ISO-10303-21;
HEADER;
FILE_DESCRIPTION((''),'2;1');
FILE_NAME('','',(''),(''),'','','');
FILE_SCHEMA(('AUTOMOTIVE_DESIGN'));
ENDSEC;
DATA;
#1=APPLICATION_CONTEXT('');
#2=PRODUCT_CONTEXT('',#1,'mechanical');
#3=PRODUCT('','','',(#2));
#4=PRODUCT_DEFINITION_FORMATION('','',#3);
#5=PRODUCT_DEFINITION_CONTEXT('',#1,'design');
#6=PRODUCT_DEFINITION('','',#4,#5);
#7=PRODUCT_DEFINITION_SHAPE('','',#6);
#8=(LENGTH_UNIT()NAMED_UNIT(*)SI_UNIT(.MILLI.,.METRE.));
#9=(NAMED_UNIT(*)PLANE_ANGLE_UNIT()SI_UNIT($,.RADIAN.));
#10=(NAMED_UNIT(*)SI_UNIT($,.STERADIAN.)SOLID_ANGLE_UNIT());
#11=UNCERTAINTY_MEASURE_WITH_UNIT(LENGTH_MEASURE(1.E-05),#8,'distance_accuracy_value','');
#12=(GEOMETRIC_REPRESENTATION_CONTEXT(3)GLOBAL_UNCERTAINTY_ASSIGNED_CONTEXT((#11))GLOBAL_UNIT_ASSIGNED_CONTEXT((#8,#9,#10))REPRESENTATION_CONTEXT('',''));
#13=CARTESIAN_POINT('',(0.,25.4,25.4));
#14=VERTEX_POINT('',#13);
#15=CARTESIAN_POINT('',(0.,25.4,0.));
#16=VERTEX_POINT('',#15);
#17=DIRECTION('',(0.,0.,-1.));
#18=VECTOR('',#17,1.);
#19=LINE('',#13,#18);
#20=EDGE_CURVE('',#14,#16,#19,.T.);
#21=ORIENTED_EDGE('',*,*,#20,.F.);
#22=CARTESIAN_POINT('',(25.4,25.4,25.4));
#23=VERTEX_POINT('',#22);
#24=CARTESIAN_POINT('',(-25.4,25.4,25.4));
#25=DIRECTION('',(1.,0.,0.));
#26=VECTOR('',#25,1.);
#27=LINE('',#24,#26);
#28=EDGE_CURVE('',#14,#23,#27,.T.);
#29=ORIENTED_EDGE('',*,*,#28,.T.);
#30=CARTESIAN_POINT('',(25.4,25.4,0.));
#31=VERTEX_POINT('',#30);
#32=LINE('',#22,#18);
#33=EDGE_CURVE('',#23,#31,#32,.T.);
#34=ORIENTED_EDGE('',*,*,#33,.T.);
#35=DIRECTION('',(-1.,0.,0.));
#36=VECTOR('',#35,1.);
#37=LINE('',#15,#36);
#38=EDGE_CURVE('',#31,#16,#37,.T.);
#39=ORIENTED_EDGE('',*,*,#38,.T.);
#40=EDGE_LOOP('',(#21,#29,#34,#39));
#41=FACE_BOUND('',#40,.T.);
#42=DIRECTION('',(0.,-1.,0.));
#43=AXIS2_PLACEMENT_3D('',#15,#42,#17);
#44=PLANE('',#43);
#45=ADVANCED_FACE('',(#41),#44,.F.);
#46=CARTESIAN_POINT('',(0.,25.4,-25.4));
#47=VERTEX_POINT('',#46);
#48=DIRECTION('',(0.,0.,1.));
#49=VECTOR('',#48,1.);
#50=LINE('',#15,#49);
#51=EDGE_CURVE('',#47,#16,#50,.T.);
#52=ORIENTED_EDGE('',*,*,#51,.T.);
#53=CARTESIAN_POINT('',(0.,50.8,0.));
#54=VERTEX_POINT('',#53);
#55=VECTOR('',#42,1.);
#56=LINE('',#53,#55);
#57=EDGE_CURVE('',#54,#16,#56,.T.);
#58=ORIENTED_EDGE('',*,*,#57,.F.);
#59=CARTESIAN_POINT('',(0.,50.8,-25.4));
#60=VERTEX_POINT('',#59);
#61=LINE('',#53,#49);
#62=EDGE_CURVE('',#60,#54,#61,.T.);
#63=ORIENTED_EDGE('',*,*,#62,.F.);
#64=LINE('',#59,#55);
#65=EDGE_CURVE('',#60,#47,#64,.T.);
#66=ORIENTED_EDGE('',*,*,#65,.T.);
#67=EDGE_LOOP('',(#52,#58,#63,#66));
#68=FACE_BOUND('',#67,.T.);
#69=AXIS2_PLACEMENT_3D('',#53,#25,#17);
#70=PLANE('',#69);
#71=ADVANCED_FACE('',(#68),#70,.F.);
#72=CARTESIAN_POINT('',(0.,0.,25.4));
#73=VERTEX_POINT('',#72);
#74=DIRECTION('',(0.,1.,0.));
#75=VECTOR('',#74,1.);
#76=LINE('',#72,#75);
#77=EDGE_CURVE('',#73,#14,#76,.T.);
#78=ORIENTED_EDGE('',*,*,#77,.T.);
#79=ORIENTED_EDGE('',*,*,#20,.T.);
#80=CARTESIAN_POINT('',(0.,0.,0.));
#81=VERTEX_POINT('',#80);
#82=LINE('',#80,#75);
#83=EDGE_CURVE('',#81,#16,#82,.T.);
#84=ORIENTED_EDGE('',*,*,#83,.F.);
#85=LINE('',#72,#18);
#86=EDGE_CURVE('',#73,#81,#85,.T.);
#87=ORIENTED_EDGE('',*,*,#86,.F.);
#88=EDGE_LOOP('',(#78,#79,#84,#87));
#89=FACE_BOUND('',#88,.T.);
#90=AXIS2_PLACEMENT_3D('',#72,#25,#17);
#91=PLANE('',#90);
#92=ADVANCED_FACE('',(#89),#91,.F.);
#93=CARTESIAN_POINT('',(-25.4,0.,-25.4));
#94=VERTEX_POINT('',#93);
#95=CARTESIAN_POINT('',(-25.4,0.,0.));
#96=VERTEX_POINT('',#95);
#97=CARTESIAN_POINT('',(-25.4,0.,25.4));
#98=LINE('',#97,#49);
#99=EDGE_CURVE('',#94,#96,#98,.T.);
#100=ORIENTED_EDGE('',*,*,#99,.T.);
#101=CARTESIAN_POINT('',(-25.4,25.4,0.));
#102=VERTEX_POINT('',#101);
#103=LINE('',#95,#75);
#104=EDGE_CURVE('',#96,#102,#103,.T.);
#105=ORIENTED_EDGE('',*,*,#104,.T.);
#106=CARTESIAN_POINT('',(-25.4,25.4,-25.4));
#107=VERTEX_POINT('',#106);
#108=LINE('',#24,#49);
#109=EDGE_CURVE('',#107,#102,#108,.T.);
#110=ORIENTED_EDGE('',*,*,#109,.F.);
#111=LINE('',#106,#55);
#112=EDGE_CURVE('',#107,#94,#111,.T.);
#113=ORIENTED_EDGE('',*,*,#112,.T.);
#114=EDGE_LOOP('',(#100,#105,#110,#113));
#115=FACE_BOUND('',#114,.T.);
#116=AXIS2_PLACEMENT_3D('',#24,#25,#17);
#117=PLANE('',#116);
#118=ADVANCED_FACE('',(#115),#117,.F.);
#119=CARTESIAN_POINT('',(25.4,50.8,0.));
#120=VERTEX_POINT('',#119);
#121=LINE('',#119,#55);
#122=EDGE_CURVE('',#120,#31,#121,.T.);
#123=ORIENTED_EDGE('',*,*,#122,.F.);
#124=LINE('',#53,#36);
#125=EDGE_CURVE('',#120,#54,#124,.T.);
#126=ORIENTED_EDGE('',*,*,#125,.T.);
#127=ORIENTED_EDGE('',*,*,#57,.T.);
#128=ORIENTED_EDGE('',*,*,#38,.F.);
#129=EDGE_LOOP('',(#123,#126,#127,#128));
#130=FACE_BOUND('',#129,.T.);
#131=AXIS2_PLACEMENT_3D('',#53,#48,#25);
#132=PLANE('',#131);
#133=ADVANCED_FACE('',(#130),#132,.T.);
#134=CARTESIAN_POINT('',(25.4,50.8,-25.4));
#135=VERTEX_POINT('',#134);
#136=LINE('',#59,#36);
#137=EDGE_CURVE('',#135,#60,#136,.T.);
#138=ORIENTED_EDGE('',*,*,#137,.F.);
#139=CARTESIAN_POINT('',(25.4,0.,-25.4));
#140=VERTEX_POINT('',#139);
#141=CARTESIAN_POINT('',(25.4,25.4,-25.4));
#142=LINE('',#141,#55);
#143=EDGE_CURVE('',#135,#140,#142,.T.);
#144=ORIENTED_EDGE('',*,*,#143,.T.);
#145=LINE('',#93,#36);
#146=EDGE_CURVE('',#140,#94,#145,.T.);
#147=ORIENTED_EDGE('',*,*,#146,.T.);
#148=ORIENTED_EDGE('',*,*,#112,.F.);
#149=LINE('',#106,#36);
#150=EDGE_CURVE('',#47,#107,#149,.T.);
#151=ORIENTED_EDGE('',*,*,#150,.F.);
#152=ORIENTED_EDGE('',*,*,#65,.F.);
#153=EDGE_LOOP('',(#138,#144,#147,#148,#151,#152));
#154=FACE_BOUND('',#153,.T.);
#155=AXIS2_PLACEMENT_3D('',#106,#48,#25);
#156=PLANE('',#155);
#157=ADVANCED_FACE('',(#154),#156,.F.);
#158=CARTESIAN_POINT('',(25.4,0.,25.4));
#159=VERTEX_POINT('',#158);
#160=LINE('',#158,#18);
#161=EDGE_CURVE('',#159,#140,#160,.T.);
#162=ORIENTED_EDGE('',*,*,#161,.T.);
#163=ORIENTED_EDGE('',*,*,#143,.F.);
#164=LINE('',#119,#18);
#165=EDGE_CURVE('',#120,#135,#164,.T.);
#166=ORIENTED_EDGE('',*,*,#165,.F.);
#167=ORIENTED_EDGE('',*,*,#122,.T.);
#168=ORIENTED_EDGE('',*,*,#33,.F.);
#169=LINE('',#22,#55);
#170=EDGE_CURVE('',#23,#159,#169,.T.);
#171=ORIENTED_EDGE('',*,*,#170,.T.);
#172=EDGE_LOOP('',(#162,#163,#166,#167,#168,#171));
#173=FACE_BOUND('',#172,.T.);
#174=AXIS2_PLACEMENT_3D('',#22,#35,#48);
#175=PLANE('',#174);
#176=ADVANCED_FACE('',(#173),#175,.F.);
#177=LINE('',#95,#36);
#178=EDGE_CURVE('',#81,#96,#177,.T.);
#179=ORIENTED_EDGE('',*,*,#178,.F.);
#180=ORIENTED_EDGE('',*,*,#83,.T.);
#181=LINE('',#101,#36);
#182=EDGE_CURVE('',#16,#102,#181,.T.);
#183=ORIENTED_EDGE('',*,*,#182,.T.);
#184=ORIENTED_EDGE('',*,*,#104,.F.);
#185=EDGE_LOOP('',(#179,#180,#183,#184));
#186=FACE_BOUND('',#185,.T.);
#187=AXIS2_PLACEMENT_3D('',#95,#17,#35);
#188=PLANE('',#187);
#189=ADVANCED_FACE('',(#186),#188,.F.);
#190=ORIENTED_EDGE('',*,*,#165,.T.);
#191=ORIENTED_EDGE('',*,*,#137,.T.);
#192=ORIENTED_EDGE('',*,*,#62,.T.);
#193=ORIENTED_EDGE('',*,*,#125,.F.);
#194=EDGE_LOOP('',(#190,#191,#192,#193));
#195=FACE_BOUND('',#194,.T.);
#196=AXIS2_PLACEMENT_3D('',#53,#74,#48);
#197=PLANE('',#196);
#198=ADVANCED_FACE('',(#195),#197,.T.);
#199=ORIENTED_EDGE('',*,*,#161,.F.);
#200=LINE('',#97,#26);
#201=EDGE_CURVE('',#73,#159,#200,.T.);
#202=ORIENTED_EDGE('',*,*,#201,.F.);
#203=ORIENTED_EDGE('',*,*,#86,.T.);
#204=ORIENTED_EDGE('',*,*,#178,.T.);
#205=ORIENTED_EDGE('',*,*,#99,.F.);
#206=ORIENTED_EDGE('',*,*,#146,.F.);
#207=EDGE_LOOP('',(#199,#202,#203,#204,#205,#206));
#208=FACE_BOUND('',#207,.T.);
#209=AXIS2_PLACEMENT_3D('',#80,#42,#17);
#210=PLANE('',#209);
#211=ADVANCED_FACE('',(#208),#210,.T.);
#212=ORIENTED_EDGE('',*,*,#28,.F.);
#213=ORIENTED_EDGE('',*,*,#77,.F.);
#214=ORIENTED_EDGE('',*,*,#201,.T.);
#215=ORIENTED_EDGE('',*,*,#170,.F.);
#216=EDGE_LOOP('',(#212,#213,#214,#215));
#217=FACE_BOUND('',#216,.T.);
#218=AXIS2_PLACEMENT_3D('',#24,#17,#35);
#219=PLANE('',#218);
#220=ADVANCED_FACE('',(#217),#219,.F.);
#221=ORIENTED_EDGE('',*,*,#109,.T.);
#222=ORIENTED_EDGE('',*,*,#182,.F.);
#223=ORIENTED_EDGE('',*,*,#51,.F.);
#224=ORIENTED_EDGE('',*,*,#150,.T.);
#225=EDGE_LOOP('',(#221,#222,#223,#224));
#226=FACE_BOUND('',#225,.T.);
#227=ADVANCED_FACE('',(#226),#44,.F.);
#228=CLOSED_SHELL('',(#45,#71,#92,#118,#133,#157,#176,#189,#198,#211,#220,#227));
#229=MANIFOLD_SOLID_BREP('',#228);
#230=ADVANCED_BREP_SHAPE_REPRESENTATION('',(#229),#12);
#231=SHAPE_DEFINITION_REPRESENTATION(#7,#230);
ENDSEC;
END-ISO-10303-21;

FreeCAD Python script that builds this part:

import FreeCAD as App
import Part
import Sketcher
Q = App.Units.Quantity

doc = App.newDocument("Part")
body = doc.addObject("PartDesign::Body", "Body")

# Sketch on XZ plane
sketch1 = body.newObject("Sketcher::SketchObject", "Sketch")
sketch1.AttachmentSupport = (doc.getObject("XZ_Plane"), [""])
sketch1.MapMode = "FlatFace"
sketch1.addGeometry([
    Part.LineSegment(App.Vector(-25, -25, 0), App.Vector(-25, 25, 0)),
    Part.LineSegment(App.Vector(-25, 25, 0), App.Vector(25, 25, 0)),
    Part.LineSegment(App.Vector(25, 25, 0), App.Vector(25, -25, 0)),
    Part.LineSegment(App.Vector(25, -25, 0), App.Vector(-25, -25, 0)),
], False)
sketch1.addConstraint([
    Sketcher.Constraint("Coincident", 0, 2, 1, 1),
    Sketcher.Constraint("Coincident", 1, 2, 2, 1),
    Sketcher.Constraint("Coincident", 2, 2, 3, 1),
    Sketcher.Constraint("Coincident", 3, 2, 0, 1),
    Sketcher.Constraint("Vertical", 0),
    Sketcher.Constraint("Horizontal", 1),
    Sketcher.Constraint("Vertical", 2),
    Sketcher.Constraint("Horizontal", 3),
    Sketcher.Constraint("Symmetric", 0, 2, 2, 2, -1, 1),
    Sketcher.Constraint("Equal", 3, 0),
    Sketcher.Constraint("DistanceX", 1, 1, 1, 2, Q("2 in")),
])
pad1 = body.newObject("PartDesign::Pad", "Pad")
pad1.Profile = sketch1
pad1.Length = Q("1 in")
pad1.Reversed = True

# Sketch on XZ plane
sketch2 = body.newObject("Sketcher::SketchObject", "Sketch001")
sketch2.AttachmentSupport = (doc.getObject("XZ_Plane"), [""])
sketch2.MapMode = "FlatFace"
sketch2.AttachmentOffset = App.Placement(App.Vector(0, 0, -1 * 25.4), App.Rotation())
sketch2.addGeometry([
    Part.LineSegment(App.Vector(-25, 0, 0), App.Vector(-25, 25, 0)),
    Part.LineSegment(App.Vector(-25, 25, 0), App.Vector(0, 25, 0)),
    Part.LineSegment(App.Vector(0, 25, 0), App.Vector(0, 0, 0)),
    Part.LineSegment(App.Vector(0, 0, 0), App.Vector(-25, 0, 0)),
], False)
sketch2.addConstraint([
    Sketcher.Constraint("Coincident", 0, 2, 1, 1),
    Sketcher.Constraint("Coincident", 1, 2, 2, 1),
    Sketcher.Constraint("Coincident", 2, 2, 3, 1),
    Sketcher.Constraint("Coincident", 3, 2, 0, 1),
    Sketcher.Constraint("Vertical", 0),
    Sketcher.Constraint("Horizontal", 1),
    Sketcher.Constraint("Vertical", 2),
    Sketcher.Constraint("Horizontal", 3),
    Sketcher.Constraint("Coincident", 2, 2, -1, 1),
    Sketcher.Constraint("Equal", 3, 0),
    Sketcher.Constraint("DistanceX", 1, 1, 1, 2, Q("1 in")),
])
pocket1 = body.newObject("PartDesign::Pocket", "Pocket")
pocket1.Profile = sketch2
pocket1.Type = "ThroughAll"
pocket1.Reversed = True

# Sketch on XZ plane
sketch3 = body.newObject("Sketcher::SketchObject", "Sketch002")
sketch3.AttachmentSupport = (doc.getObject("XZ_Plane"), [""])
sketch3.MapMode = "FlatFace"
sketch3.AttachmentOffset = App.Placement(App.Vector(0, 0, -1 * 25.4), App.Rotation())
sketch3.addGeometry([
    Part.LineSegment(App.Vector(0, -25, 0), App.Vector(0, 0, 0)),
    Part.LineSegment(App.Vector(0, 0, 0), App.Vector(25, 0, 0)),
    Part.LineSegment(App.Vector(25, 0, 0), App.Vector(25, -25, 0)),
    Part.LineSegment(App.Vector(25, -25, 0), App.Vector(0, -25, 0)),
], False)
sketch3.addConstraint([
    Sketcher.Constraint("Coincident", 0, 2, 1, 1),
    Sketcher.Constraint("Coincident", 1, 2, 2, 1),
    Sketcher.Constraint("Coincident", 2, 2, 3, 1),
    Sketcher.Constraint("Coincident", 3, 2, 0, 1),
    Sketcher.Constraint("Vertical", 0),
    Sketcher.Constraint("Horizontal", 1),
    Sketcher.Constraint("Vertical", 2),
    Sketcher.Constraint("Horizontal", 3),
    Sketcher.Constraint("Coincident", 0, 2, -1, 1),
    Sketcher.Constraint("Equal", 3, 0),
    Sketcher.Constraint("DistanceX", 1, 1, 1, 2, Q("1 in")),
])
pad2 = body.newObject("PartDesign::Pad", "Pad001")
pad2.Profile = sketch3
pad2.Length = Q("1 in")
pad2.Reversed = True

doc.recompute()
